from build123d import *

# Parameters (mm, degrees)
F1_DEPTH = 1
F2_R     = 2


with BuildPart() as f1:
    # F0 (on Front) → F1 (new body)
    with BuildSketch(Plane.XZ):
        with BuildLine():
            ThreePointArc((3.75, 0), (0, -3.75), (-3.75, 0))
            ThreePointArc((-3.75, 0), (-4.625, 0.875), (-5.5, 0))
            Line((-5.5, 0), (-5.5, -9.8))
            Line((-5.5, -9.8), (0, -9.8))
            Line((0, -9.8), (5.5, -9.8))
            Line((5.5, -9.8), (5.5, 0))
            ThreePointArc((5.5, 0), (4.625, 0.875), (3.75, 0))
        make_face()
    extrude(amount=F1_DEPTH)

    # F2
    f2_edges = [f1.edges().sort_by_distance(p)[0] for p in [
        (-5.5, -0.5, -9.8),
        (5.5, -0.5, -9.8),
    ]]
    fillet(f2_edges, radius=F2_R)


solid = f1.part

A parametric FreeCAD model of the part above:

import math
import FreeCAD as App
import Part
import Sketcher
Q = App.Units.Quantity


def edges_at(feature, points):
    """Names of the edges that pass closest to the given points."""
    edges = feature.Shape.Edges
    near = lambda p: min(range(len(edges)), key=lambda i: edges[i].distToShape(Part.Vertex(*p))[0])
    return sorted({f"Edge{near(p) + 1}" for p in points})

doc = App.newDocument("Part")
params = doc.addObject("Spreadsheet::Sheet", "Params")
for row, (alias, value) in enumerate([
    ("sketch1_width", "11 mm"),
    ("sketch1_radius", "3.75 mm"),
    ("sketch1_height", "9.8 mm"),
    ("pad1_length", "1 mm"),
    ("fillet_radius", "2 mm"),
], start=1):
    params.set(f"A{row}", alias)
    params.set(f"B{row}", "=" + value)
    params.setAlias(f"B{row}", alias)

body = doc.addObject("PartDesign::Body", "Body")

sketch1 = body.newObject("Sketcher::SketchObject", "Sketch")
sketch1.AttachmentSupport = (doc.getObject("XZ_Plane"), [""])
sketch1.MapMode = "FlatFace"
sketch1.addGeometry(Part.ArcOfCircle(Part.Circle(App.Vector(0, 0, 0), App.Vector(0, 0, 1), 3.75), math.radians(180), math.radians(360)), False)
sketch1.addGeometry(Part.ArcOfCircle(Part.Circle(App.Vector(-4.625, 0, 0), App.Vector(0, 0, 1), 0.875), math.radians(0), math.radians(180)), False)
sketch1.addGeometry(Part.LineSegment(App.Vector(-5.5, 0, 0), App.Vector(-5.5, -9.8, 0)), False)
sketch1.addGeometry(Part.LineSegment(App.Vector(-5.5, -9.8, 0), App.Vector(5.5, -9.8, 0)), False)
sketch1.addGeometry(Part.LineSegment(App.Vector(5.5, -9.8, 0), App.Vector(5.5, 0, 0)), False)
sketch1.addGeometry(Part.ArcOfCircle(Part.Circle(App.Vector(4.625, 0, 0), App.Vector(0, 0, 1), 0.875), math.radians(0), math.radians(180)), False)
sketch1.addConstraint(Sketcher.Constraint("Tangent", 0, 1, 1, 1))
sketch1.addConstraint(Sketcher.Constraint("Tangent", 1, 2, 2, 1))
sketch1.addConstraint(Sketcher.Constraint("Coincident", 2, 2, 3, 1))
sketch1.addConstraint(Sketcher.Constraint("Coincident", 3, 2, 4, 1))
sketch1.addConstraint(Sketcher.Constraint("Tangent", 4, 2, 5, 1))
sketch1.addConstraint(Sketcher.Constraint("Tangent", 5, 2, 0, 2))
sketch1.addConstraint(Sketcher.Constraint("Vertical", 2))
sketch1.addConstraint(Sketcher.Constraint("Horizontal", 3))
sketch1.addConstraint(Sketcher.Constraint("Vertical", 4))
sketch1.addConstraint(Sketcher.Constraint("Coincident", 0, 3, -1, 1))
sketch1.addConstraint(Sketcher.Constraint("Equal", 1, 5))
sketch1.addConstraint(Sketcher.Constraint("PointOnObject", 1, 3, -1))
sketch1.addConstraint(Sketcher.Constraint("PointOnObject", 5, 3, -1))
sketch1.addConstraint(Sketcher.Constraint("DistanceX", 3, 1, 3, 2, Q("11 mm")))
sketch1.addConstraint(Sketcher.Constraint("Radius", 0, Q("3.75 mm")))
sketch1.addConstraint(Sketcher.Constraint("DistanceY", 2, 2, 2, 1, Q("9.8 mm")))
sketch1.setExpression("Constraints[13]", "Params.sketch1_width")
sketch1.setExpression("Constraints[14]", "Params.sketch1_radius")
sketch1.setExpression("Constraints[15]", "Params.sketch1_height")
pad1 = body.newObject("PartDesign::Pad", "Pad")
pad1.Profile = sketch1
pad1.setExpression("Length", "Params.pad1_length")
doc.recompute()

fillet = body.newObject("PartDesign::Fillet", "Fillet")
fillet.Base = (pad1, edges_at(pad1, [(-5.5, -0.5, -9.8), (5.5, -0.5, -9.8)]))
fillet.setExpression("Radius", "Params.fillet_radius")

doc.recompute()
